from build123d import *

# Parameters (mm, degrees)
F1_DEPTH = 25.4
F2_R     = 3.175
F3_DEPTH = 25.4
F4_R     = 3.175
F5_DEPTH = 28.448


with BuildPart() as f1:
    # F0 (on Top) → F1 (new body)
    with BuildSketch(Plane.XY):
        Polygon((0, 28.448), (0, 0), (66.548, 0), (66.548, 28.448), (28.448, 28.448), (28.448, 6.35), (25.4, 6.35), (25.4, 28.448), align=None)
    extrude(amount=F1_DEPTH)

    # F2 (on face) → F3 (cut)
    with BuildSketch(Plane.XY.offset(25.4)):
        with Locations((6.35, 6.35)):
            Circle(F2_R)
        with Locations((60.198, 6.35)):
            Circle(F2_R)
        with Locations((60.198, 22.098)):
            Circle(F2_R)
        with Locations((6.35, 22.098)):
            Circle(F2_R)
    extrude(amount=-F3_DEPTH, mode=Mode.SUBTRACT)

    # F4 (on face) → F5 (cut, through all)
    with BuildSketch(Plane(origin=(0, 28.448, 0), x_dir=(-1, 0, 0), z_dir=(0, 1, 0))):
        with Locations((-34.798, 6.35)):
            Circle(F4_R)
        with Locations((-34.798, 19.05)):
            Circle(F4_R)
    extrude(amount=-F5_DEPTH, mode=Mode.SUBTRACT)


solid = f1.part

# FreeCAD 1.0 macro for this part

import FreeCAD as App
import Part
import Sketcher

V = App.Vector
Q = App.Units.Quantity

doc = App.newDocument("Part")
params = doc.addObject("Spreadsheet::Sheet", "Params")
for row, (alias, value) in enumerate([
    ("sketch1_width", "1 in"),
    ("sketch1_width2", "1.5 in"),
    ("sketch1_width3", "2.62 in"),
    ("sketch1_height", "1.12 in"),
    ("sketch1_height2", "0.87 in"),
    ("pad1_length", "1 in"),
    ("sketch2_diameter", "0.25 in"),
    ("pocket1_length", "1 in"),
    ("sketch3_diameter", "0.25 in"),
], start=1):
    params.set(f"A{row}", alias)
    params.set(f"B{row}", "=" + value)
    params.setAlias(f"B{row}", alias)

body = doc.addObject("PartDesign::Body", "Body")

sketch1 = body.newObject("Sketcher::SketchObject", "Sketch")
sketch1.AttachmentSupport = (doc.getObject("XY_Plane"), [""])
sketch1.MapMode = "FlatFace"
sketch1.addGeometry(Part.LineSegment(V(0, 28.448, 0), V(0, 0, 0)), False)
sketch1.addGeometry(Part.LineSegment(V(0, 0, 0), V(66.548, 0, 0)), False)
sketch1.addGeometry(Part.LineSegment(V(66.548, 0, 0), V(66.548, 28.448, 0)), False)
sketch1.addGeometry(Part.LineSegment(V(66.548, 28.448, 0), V(28.448, 28.448, 0)), False)
sketch1.addGeometry(Part.LineSegment(V(28.448, 28.448, 0), V(28.448, 6.35, 0)), False)
sketch1.addGeometry(Part.LineSegment(V(28.448, 6.35, 0), V(25.4, 6.35, 0)), False)
sketch1.addGeometry(Part.LineSegment(V(25.4, 6.35, 0), V(25.4, 28.448, 0)), False)
sketch1.addGeometry(Part.LineSegment(V(25.4, 28.448, 0), V(0, 28.448, 0)), False)
sketch1.addConstraint(Sketcher.Constraint("Coincident", 0, 2, 1, 1))
sketch1.addConstraint(Sketcher.Constraint("Coincident", 1, 2, 2, 1))
sketch1.addConstraint(Sketcher.Constraint("Coincident", 2, 2, 3, 1))
sketch1.addConstraint(Sketcher.Constraint("Coincident", 3, 2, 4, 1))
sketch1.addConstraint(Sketcher.Constraint("Coincident", 4, 2, 5, 1))
sketch1.addConstraint(Sketcher.Constraint("Coincident", 5, 2, 6, 1))
sketch1.addConstraint(Sketcher.Constraint("Coincident", 6, 2, 7, 1))
sketch1.addConstraint(Sketcher.Constraint("Coincident", 7, 2, 0, 1))
sketch1.addConstraint(Sketcher.Constraint("Vertical", 0))
sketch1.addConstraint(Sketcher.Constraint("Horizontal", 1))
sketch1.addConstraint(Sketcher.Constraint("Vertical", 2))
sketch1.addConstraint(Sketcher.Constraint("Horizontal", 3))
sketch1.addConstraint(Sketcher.Constraint("Vertical", 4))
sketch1.addConstraint(Sketcher.Constraint("Horizontal", 5))
sketch1.addConstraint(Sketcher.Constraint("Vertical", 6))
sketch1.addConstraint(Sketcher.Constraint("Horizontal", 7))
sketch1.addConstraint(Sketcher.Constraint("Coincident", 0, 2, -1, 1))
sketch1.addConstraint(Sketcher.Constraint("Horizontal", 3, 2, 6, 2))
sketch1.addConstraint(Sketcher.Constraint("DistanceX", 7, 2, 7, 1, Q("1 in")))
sketch1.addConstraint(Sketcher.Constraint("DistanceX", 3, 2, 3, 1, Q("1.5 in")))
sketch1.addConstraint(Sketcher.Constraint("DistanceX", 1, 1, 1, 2, Q("2.62 in")))
sketch1.addConstraint(Sketcher.Constraint("DistanceY", 0, 2, 0, 1, Q("1.12 in")))
sketch1.addConstraint(Sketcher.Constraint("DistanceY", 4, 2, 4, 1, Q("0.87 in")))
sketch1.setExpression("Constraints[18]", "Params.sketch1_width")
sketch1.setExpression("Constraints[19]", "Params.sketch1_width2")
sketch1.setExpression("Constraints[20]", "Params.sketch1_width3")
sketch1.setExpression("Constraints[21]", "Params.sketch1_height")
sketch1.setExpression("Constraints[22]", "Params.sketch1_height2")
pad1 = body.newObject("PartDesign::Pad", "Pad")
pad1.Profile = sketch1
pad1.setExpression("Length", "Params.pad1_length")

sketch2 = body.newObject("Sketcher::SketchObject", "Sketch001")
sketch2.AttachmentSupport = (doc.getObject("XY_Plane"), [""])
sketch2.MapMode = "FlatFace"
sketch2.AttachmentOffset = App.Placement(V(0, 0, 1 * 25.4), App.Rotation())
sketch2.addGeometry(Part.Circle(V(6.35, 6.35, 0), V(0, 0, 1), 3.175), False)
sketch2.addGeometry(Part.Circle(V(60.198, 6.35, 0), V(0, 0, 1), 3.175), False)
sketch2.addGeometry(Part.Circle(V(60.198, 22.098, 0), V(0, 0, 1), 3.175), False)
sketch2.addGeometry(Part.Circle(V(6.35, 22.098, 0), V(0, 0, 1), 3.175), False)
sketch2.addConstraint(Sketcher.Constraint("Equal", 0, 1))
sketch2.addConstraint(Sketcher.Constraint("Equal", 1, 2))
sketch2.addConstraint(Sketcher.Constraint("Equal", 2, 3))
sketch2.addConstraint(Sketcher.Constraint("Horizontal", 0, 3, 1, 3))
sketch2.addConstraint(Sketcher.Constraint("Horizontal", 2, 3, 3, 3))
sketch2.addConstraint(Sketcher.Constraint("Vertical", 1, 3, 2, 3))
sketch2.addConstraint(Sketcher.Constraint("Vertical", 0, 3, 3, 3))
sketch2.addConstraint(Sketcher.Constraint("Diameter", 0, Q("0.25 in")))
sketch2.addConstraint(Sketcher.Constraint("DistanceX", -1, 1, 0, 3, Q("0.25 in")))
sketch2.addConstraint(Sketcher.Constraint("DistanceY", -1, 1, 0, 3, Q("0.25 in")))
sketch2.addConstraint(Sketcher.Constraint("DistanceX", -1, 1, 1, 3, Q("2.37 in")))
sketch2.addConstraint(Sketcher.Constraint("DistanceY", -1, 1, 2, 3, Q("0.87 in")))
sketch2.setExpression("Constraints[7]", "Params.sketch2_diameter")
pocket1 = body.newObject("PartDesign::Pocket", "Pocket")
pocket1.Profile = sketch2
pocket1.setExpression("Length", "Params.pocket1_length")

sketch3 = body.newObject("Sketcher::SketchObject", "Sketch002")
sketch3.AttachmentSupport = (doc.getObject("XZ_Plane"), [""])
sketch3.MapMode = "FlatFace"
sketch3.AttachmentOffset = App.Placement(V(0, 0, -1.12 * 25.4), App.Rotation())
sketch3.addGeometry(Part.Circle(V(34.798, 6.35, 0), V(0, 0, 1), 3.175), False)
sketch3.addGeometry(Part.Circle(V(34.798, 19.05, 0), V(0, 0, 1), 3.175), False)
sketch3.addConstraint(Sketcher.Constraint("Equal", 0, 1))
sketch3.addConstraint(Sketcher.Constraint("Vertical", 0, 3, 1, 3))
sketch3.addConstraint(Sketcher.Constraint("Diameter", 0, Q("0.25 in")))
sketch3.addConstraint(Sketcher.Constraint("DistanceY", 0, 3, 1, 3, Q("0.5 in")))
sketch3.addConstraint(Sketcher.Constraint("DistanceX", -1, 1, 0, 3, Q("1.37 in")))
sketch3.addConstraint(Sketcher.Constraint("DistanceY", -1, 1, 0, 3, Q("0.25 in")))
sketch3.setExpression("Constraints[2]", "Params.sketch3_diameter")
pocket2 = body.newObject("PartDesign::Pocket", "Pocket001")
pocket2.Profile = sketch3
pocket2.Type = "ThroughAll"
pocket2.Reversed = True

doc.recompute()
